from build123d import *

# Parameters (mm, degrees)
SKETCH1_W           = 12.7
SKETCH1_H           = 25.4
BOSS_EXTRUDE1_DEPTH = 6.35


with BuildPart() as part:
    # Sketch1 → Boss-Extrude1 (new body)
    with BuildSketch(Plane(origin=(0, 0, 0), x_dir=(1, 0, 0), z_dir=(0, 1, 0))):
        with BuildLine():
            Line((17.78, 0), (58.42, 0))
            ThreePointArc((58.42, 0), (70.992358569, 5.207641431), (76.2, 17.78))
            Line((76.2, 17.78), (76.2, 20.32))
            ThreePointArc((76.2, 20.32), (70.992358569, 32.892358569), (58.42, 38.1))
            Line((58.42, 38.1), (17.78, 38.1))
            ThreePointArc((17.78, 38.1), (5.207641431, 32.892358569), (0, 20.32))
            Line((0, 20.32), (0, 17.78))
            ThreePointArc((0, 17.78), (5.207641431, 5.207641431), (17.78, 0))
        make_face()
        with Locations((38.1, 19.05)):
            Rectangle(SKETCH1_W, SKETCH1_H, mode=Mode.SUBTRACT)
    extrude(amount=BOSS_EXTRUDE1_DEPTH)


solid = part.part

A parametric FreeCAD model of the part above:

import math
import FreeCAD as App
import Part
import Sketcher

V = App.Vector
Q = App.Units.Quantity


def add_polygon(sketch, points):
    """Adds a closed chain of lines whose ends are joined by coincident constraints."""
    first, n = sketch.GeometryCount, len(points)
    for a, b in zip(points, points[1:] + points[:1]):
        sketch.addGeometry(Part.LineSegment(App.Vector(*a, 0), App.Vector(*b, 0)), False)
    for i in range(n):
        sketch.addConstraint(Sketcher.Constraint("Coincident", first + i, 2, first + (i + 1) % n, 1))

doc = App.newDocument("Part")
body = doc.addObject("PartDesign::Body", "Body")

# Sketch on XZ plane
sketch1 = doc.addObject("Sketcher::SketchObject", "Sketch")
body.addObject(sketch1)
sketch1.AttachmentSupport = (doc.XZ_Plane, [""])
sketch1.MapMode = "FlatFace"
sketch1.addGeometry(Part.LineSegment(V(17.78, 0, 0), V(58.42, 0, 0)), False)  # 0
sketch1.addGeometry(Part.ArcOfCircle(Part.Circle(V(58.42, -17.78, 0), V(0, 0, 1), 17.78), math.radians(0), math.radians(90)), False)  # 1
sketch1.addGeometry(Part.LineSegment(V(76.2, -17.78, 0), V(76.2, -20.32, 0)), False)  # 2
sketch1.addGeometry(Part.ArcOfCircle(Part.Circle(V(58.42, -20.32, 0), V(0, 0, 1), 17.78), math.radians(-90), math.radians(0)), False)  # 3
sketch1.addGeometry(Part.LineSegment(V(58.42, -38.1, 0), V(17.78, -38.1, 0)), False)  # 4
sketch1.addGeometry(Part.ArcOfCircle(Part.Circle(V(17.78, -20.32, 0), V(0, 0, 1), 17.78), math.radians(-180), math.radians(-90)), False)  # 5
sketch1.addGeometry(Part.LineSegment(V(0, -20.32, 0), V(0, -17.78, 0)), False)  # 6
sketch1.addGeometry(Part.ArcOfCircle(Part.Circle(V(17.78, -17.78, 0), V(0, 0, 1), 17.78), math.radians(90), math.radians(180)), False)  # 7
add_polygon(sketch1, [(44.45, -6.35), (31.75, -6.35), (31.75, -31.75), (44.45, -31.75)])  # lines 8-11
sketch1.addConstraint([
    Sketcher.Constraint("Tangent", 0, 2, 1, 2),
    Sketcher.Constraint("Tangent", 1, 1, 2, 1),
    Sketcher.Constraint("Tangent", 2, 2, 3, 2),
    Sketcher.Constraint("Tangent", 3, 1, 4, 1),
    Sketcher.Constraint("Tangent", 4, 2, 5, 2),
    Sketcher.Constraint("Tangent", 5, 1, 6, 1),
    Sketcher.Constraint("Tangent", 6, 2, 7, 2),
    Sketcher.Constraint("Tangent", 7, 1, 0, 1),
    Sketcher.Constraint("Horizontal", 0),
    Sketcher.Constraint("Vertical", 2),
    Sketcher.Constraint("Horizontal", 4),
    Sketcher.Constraint("Vertical", 6),
    Sketcher.Constraint("Horizontal", 8),
    Sketcher.Constraint("Vertical", 9),
    Sketcher.Constraint("Horizontal", 10),
    Sketcher.Constraint("Vertical", 11),
    Sketcher.Constraint("Equal", 1, 3),
    Sketcher.Constraint("Equal", 3, 5),
    Sketcher.Constraint("Equal", 5, 7),
    Sketcher.Constraint("PointOnObject", 0, 2, -1),
    Sketcher.Constraint("PointOnObject", 5, 1, -2),
    Sketcher.Constraint("Radius", 1, Q("0.7 in")),
    Sketcher.Constraint("DistanceY", 9, 2, 9, 1, Q("1 in")),
    Sketcher.Constraint("DistanceX", 0, 1, 0, 2, Q("1.6 in")),
    Sketcher.Constraint("DistanceX", 8, 2, 8, 1, Q("0.5 in")),
    Sketcher.Constraint("DistanceY", 2, 2, 2, 1, Q("0.1 in")),
    Sketcher.Constraint("DistanceX", -1, 1, 8, 2, Q("1.25 in")),
    Sketcher.Constraint("DistanceY", 8, 2, -1, 1, Q("0.25 in")),
])
pad1 = doc.addObject("PartDesign::Pad", "Pad")
body.addObject(pad1)
pad1.Profile = sketch1
pad1.Length = Q("0.25 in")
pad1.Reversed = True

doc.recompute()
